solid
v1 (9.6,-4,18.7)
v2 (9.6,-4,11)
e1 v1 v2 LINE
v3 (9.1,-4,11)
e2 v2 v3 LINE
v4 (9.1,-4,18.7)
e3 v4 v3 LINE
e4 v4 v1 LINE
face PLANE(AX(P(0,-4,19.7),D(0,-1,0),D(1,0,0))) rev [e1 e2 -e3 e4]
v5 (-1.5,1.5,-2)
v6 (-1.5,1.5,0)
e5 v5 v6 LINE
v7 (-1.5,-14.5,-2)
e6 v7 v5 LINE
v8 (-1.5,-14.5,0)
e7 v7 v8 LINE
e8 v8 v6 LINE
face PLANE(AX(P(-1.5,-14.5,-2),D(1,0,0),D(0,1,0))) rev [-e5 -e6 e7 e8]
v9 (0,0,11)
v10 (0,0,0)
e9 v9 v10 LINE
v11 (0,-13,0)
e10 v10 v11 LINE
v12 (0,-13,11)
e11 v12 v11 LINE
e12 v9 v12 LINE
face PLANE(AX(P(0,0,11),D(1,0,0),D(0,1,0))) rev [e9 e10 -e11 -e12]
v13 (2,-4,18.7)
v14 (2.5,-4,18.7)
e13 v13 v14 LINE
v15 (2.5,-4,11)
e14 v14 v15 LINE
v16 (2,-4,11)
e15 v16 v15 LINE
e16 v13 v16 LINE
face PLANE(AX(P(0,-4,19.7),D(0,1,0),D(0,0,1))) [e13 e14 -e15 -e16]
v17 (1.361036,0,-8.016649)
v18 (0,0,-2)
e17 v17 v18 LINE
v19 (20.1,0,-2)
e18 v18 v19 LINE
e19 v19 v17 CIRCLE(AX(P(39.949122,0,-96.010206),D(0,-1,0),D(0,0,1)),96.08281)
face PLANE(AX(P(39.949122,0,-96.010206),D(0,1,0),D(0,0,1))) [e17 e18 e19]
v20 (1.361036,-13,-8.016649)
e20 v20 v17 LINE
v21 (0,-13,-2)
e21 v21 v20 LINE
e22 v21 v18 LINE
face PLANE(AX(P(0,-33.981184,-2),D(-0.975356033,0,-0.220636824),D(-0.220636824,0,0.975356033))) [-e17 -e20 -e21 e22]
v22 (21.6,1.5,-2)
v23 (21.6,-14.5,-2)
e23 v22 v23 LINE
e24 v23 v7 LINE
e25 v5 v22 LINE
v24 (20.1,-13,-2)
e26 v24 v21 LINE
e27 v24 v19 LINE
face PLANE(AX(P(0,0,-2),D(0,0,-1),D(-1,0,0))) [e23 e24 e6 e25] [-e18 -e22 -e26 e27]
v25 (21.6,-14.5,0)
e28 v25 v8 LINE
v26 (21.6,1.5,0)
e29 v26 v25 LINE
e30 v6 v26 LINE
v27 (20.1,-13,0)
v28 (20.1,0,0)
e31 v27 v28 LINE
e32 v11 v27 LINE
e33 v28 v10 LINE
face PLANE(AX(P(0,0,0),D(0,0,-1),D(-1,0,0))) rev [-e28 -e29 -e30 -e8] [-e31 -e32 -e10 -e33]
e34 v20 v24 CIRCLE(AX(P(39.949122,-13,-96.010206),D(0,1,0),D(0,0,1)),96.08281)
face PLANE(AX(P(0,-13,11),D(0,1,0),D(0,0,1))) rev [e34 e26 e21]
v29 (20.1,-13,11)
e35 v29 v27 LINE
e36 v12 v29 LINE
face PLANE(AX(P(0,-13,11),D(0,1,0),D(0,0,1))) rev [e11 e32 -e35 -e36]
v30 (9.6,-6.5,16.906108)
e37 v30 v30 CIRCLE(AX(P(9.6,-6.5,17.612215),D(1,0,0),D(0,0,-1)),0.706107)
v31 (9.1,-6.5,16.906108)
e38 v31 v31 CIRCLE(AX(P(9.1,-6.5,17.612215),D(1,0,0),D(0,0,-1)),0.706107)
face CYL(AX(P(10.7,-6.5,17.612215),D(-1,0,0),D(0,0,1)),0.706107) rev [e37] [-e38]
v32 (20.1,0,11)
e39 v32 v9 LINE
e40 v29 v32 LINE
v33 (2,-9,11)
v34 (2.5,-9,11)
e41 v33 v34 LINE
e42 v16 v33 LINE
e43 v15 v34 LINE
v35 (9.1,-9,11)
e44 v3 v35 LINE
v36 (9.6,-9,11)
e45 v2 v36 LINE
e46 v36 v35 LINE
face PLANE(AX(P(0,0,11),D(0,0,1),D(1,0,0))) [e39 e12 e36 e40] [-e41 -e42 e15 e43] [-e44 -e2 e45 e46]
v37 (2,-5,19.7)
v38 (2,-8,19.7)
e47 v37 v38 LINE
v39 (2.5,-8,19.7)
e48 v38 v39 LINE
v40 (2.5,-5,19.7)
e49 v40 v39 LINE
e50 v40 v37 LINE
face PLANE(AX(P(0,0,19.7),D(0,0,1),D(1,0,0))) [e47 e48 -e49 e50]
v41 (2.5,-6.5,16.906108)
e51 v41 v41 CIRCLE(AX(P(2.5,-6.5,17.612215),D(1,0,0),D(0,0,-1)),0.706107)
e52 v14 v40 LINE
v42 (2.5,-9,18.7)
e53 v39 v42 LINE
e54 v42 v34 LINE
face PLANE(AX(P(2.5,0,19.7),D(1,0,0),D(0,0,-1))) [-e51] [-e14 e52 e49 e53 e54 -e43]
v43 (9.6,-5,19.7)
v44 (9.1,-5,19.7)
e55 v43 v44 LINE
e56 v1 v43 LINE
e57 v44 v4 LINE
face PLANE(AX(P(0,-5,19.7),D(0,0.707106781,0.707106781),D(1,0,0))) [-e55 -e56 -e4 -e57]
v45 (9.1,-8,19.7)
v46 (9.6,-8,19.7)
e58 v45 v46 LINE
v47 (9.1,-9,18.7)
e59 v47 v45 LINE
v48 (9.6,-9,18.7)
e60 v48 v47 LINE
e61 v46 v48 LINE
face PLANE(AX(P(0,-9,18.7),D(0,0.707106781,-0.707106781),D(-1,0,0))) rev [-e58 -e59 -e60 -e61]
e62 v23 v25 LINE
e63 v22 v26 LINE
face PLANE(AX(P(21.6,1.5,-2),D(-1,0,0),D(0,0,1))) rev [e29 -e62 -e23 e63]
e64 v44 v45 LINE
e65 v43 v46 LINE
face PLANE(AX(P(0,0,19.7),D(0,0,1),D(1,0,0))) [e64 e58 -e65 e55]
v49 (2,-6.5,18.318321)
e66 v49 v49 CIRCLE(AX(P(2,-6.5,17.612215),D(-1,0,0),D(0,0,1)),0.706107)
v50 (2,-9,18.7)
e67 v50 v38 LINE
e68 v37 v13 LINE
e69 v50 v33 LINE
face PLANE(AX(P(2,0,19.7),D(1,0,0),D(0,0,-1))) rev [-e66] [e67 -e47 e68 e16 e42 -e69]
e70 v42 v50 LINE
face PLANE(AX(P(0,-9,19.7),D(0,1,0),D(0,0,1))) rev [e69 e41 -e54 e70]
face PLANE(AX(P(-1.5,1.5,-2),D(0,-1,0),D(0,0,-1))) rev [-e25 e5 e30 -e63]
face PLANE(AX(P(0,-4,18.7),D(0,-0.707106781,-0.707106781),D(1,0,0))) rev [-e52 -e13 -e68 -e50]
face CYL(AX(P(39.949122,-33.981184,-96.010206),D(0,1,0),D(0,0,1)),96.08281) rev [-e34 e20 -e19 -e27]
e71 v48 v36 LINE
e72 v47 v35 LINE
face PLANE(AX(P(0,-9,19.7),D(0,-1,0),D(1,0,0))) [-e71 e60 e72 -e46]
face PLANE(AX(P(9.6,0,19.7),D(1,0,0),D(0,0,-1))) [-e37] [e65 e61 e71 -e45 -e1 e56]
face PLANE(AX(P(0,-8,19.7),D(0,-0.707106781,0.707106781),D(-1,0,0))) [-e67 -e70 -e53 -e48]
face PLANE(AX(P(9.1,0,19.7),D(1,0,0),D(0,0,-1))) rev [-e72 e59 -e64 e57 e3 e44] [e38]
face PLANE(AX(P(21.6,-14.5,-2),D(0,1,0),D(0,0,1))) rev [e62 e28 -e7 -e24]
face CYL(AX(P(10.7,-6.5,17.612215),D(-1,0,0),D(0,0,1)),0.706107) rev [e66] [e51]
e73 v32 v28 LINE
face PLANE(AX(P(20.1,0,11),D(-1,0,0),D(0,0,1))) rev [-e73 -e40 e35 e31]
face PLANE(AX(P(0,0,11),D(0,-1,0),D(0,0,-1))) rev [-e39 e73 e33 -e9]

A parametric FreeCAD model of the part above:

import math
import FreeCAD as App
import Part
import Sketcher
Q = App.Units.Quantity


def edges_at(feature, points):
    """Names of the edges that pass closest to the given points."""
    edges = feature.Shape.Edges
    near = lambda p: min(range(len(edges)), key=lambda i: edges[i].distToShape(Part.Vertex(*p))[0])
    return sorted({f"Edge{near(p) + 1}" for p in points})


def add_polygon(sketch, points):
    """Adds a closed chain of lines whose ends are joined by coincident constraints."""
    first, n = sketch.GeometryCount, len(points)
    for a, b in zip(points, points[1:] + points[:1]):
        sketch.addGeometry(Part.LineSegment(App.Vector(*a, 0), App.Vector(*b, 0)), False)
    for i in range(n):
        sketch.addConstraint(Sketcher.Constraint("Coincident", first + i, 2, first + (i + 1) % n, 1))

doc = App.newDocument("Part")
params = doc.addObject("Spreadsheet::Sheet", "Params")
for row, (alias, value) in enumerate([
    ("sketch1_height", "13 mm"),
    ("sketch1_width", "20.1 mm"),
    ("pad1_length", "11 mm"),
    ("sketch2_height", "5 mm"),
    ("sketch2_width", "0.5 mm"),
    ("pad2_length", "8.7 mm"),
    ("pocket1_length", "8.7 mm"),
    ("chamfer_size", "1 mm"),
    ("sketch4_height", "16 mm"),
    ("sketch4_width", "23.1 mm"),
    ("pad3_length", "2 mm"),
    ("sketch5_width", "20.1 mm"),
    ("pad4_length", "13 mm"),
], start=1):
    params.set(f"A{row}", alias)
    params.set(f"B{row}", "=" + value)
    params.setAlias(f"B{row}", alias)

body = doc.addObject("PartDesign::Body", "Body")

# Sketch on XY plane
sketch1 = doc.addObject("Sketcher::SketchObject", "Sketch")
body.addObject(sketch1)
sketch1.AttachmentSupport = (doc.XY_Plane, [""])
sketch1.MapMode = "FlatFace"
add_polygon(sketch1, [(0, 0), (0, -13), (20, -13), (20, 0)])  # lines 0-3
sketch1.addConstraint([
    Sketcher.Constraint("Vertical", 0),
    Sketcher.Constraint("Horizontal", 1),
    Sketcher.Constraint("Vertical", 2),
    Sketcher.Constraint("Horizontal", 3),
    Sketcher.Constraint("Coincident", 3, 2, -1, 1),
    Sketcher.Constraint("DistanceY", 0, 2, 0, 1, Q("13 mm")),
    Sketcher.Constraint("DistanceX", 1, 1, 1, 2, Q("20.1 mm")),
])
sketch1.setExpression("Constraints[9]", "Params.sketch1_height")
sketch1.setExpression("Constraints[10]", "Params.sketch1_width")
pad1 = doc.addObject("PartDesign::Pad", "Pad")
body.addObject(pad1)
pad1.Profile = sketch1
pad1.setExpression("Length", "Params.pad1_length")

# Sketch on XY plane
sketch2 = doc.addObject("Sketcher::SketchObject", "Sketch001")
body.addObject(sketch2)
sketch2.AttachmentSupport = (doc.XY_Plane, [""])
sketch2.MapMode = "FlatFace"
sketch2.AttachmentOffset = App.Placement(App.Vector(0, 0, 11), App.Rotation())
add_polygon(sketch2, [(2, -4), (2, -9), (2.5, -9), (2.5, -4)])  # lines 0-3
add_polygon(sketch2, [(9.1, -4), (9.1, -9), (9.6, -9), (9.6, -4)])  # lines 4-7
sketch2.addConstraint([
    Sketcher.Constraint("Vertical", 0),
    Sketcher.Constraint("Horizontal", 1),
    Sketcher.Constraint("Vertical", 2),
    Sketcher.Constraint("Horizontal", 3),
    Sketcher.Constraint("Vertical", 4),
    Sketcher.Constraint("Horizontal", 5),
    Sketcher.Constraint("Vertical", 6),
    Sketcher.Constraint("Horizontal", 7),
    Sketcher.Constraint("Horizontal", 1, 2, 4, 2),
    Sketcher.Constraint("Horizontal", 3, 2, 6, 2),
    Sketcher.Constraint("Equal", 3, 5),
    Sketcher.Constraint("DistanceY", 0, 2, 0, 1, Q("5 mm")),
    Sketcher.Constraint("DistanceX", 1, 1, 1, 2, Q("0.5 mm")),
    Sketcher.Constraint("DistanceX", -1, 1, 0, 2, Q("2 mm")),
    Sketcher.Constraint("DistanceY", 0, 2, -1, 1, Q("9 mm")),
    Sketcher.Constraint("DistanceX", -1, 1, 4, 2, Q("9.1 mm")),
])
sketch2.setExpression("Constraints[19]", "Params.sketch2_height")
sketch2.setExpression("Constraints[20]", "Params.sketch2_width")
pad2 = doc.addObject("PartDesign::Pad", "Pad001")
body.addObject(pad2)
pad2.Profile = sketch2
pad2.setExpression("Length", "Params.pad2_length")

# Sketch on YZ plane
sketch3 = doc.addObject("Sketcher::SketchObject", "Sketch002")
body.addObject(sketch3)
sketch3.AttachmentSupport = (doc.YZ_Plane, [""])
sketch3.MapMode = "FlatFace"
sketch3.AttachmentOffset = App.Placement(App.Vector(0, 0, 2), App.Rotation())
sketch3.addGeometry(Part.Circle(App.Vector(-6.5, 17.6, 0), App.Vector(0, 0, 1), 0.7), False)
sketch3.addConstraint([
    Sketcher.Constraint("DistanceX", 0, 3, -1, 1, Q("6.5 mm")),
    Sketcher.Constraint("Diameter", 0, Q("1.412213 mm")),
    Sketcher.Constraint("DistanceY", -1, 1, 0, 3, Q("17.612215 mm")),
])
pocket1 = doc.addObject("PartDesign::Pocket", "Pocket")
body.addObject(pocket1)
pocket1.Profile = sketch3
pocket1.setExpression("Length", "Params.pocket1_length")
pocket1.Reversed = True
doc.recompute()

chamfer = doc.addObject("PartDesign::Chamfer", "Chamfer")
body.addObject(chamfer)
chamfer.Base = (pocket1, edges_at(pocket1, [
    (2.25, -4, 19.7),
    (2.25, -9, 19.7),
    (9.35, -9, 19.7),
    (9.35, -4, 19.7),
]))
chamfer.setExpression("Size", "Params.chamfer_size")

# Sketch on XY plane
sketch4 = doc.addObject("Sketcher::SketchObject", "Sketch003")
body.addObject(sketch4)
sketch4.AttachmentSupport = (doc.XY_Plane, [""])
sketch4.MapMode = "FlatFace"
add_polygon(sketch4, [(22, 2), (22, -14), (-2, -14), (-2, 2)])  # lines 0-3
sketch4.addConstraint([
    Sketcher.Constraint("Vertical", 0),
    Sketcher.Constraint("Horizontal", 1),
    Sketcher.Constraint("Vertical", 2),
    Sketcher.Constraint("Horizontal", 3),
    Sketcher.Constraint("DistanceY", 0, 2, 0, 1, Q("16 mm")),
    Sketcher.Constraint("DistanceX", 1, 2, 1, 1, Q("23.1 mm")),
    Sketcher.Constraint("DistanceX", -1, 1, 0, 2, Q("21.6 mm")),
    Sketcher.Constraint("DistanceY", 0, 2, -1, 1, Q("14.5 mm")),
])
sketch4.setExpression("Constraints[8]", "Params.sketch4_height")
sketch4.setExpression("Constraints[9]", "Params.sketch4_width")
pad3 = doc.addObject("PartDesign::Pad", "Pad002")
body.addObject(pad3)
pad3.Profile = sketch4
pad3.setExpression("Length", "Params.pad3_length")
pad3.Reversed = True

# Sketch on XZ plane
sketch5 = doc.addObject("Sketcher::SketchObject", "Sketch004")
body.addObject(sketch5)
sketch5.AttachmentSupport = (doc.XZ_Plane, [""])
sketch5.MapMode = "FlatFace"
sketch5.addGeometry([
    Part.LineSegment(App.Vector(1, -8, 0), App.Vector(0, -2, 0)),
    Part.LineSegment(App.Vector(0, -2, 0), App.Vector(20, -2, 0)),
    Part.ArcOfCircle(Part.Circle(App.Vector(40, -96, 0), App.Vector(0, 0, 1), 96), math.radians(101.92), math.radians(113.68)),
], False)
sketch5.addConstraint([
    Sketcher.Constraint("Coincident", 0, 2, 1, 1),
    Sketcher.Constraint("Coincident", 1, 2, 2, 1),
    Sketcher.Constraint("Coincident", 2, 2, 0, 1),
    Sketcher.Constraint("Horizontal", 1),
    Sketcher.Constraint("PointOnObject", 0, 2, -2),
    Sketcher.Constraint("DistanceX", 1, 1, 1, 2, Q("20.1 mm")),
    Sketcher.Constraint("DistanceY", 0, 2, -1, 1, Q("2 mm")),
    Sketcher.Constraint("Radius", 2, Q("96.08281 mm")),
    Sketcher.Constraint("Distance", 0, Q("6.16867 mm")),
    Sketcher.Constraint("DistanceY", 2, 2, -1, 1, Q("8.016649 mm")),
])
sketch5.setExpression("Constraints[5]", "Params.sketch5_width")
pad4 = doc.addObject("PartDesign::Pad", "Pad003")
body.addObject(pad4)
pad4.Profile = sketch5
pad4.setExpression("Length", "Params.pad4_length")

doc.recompute()
